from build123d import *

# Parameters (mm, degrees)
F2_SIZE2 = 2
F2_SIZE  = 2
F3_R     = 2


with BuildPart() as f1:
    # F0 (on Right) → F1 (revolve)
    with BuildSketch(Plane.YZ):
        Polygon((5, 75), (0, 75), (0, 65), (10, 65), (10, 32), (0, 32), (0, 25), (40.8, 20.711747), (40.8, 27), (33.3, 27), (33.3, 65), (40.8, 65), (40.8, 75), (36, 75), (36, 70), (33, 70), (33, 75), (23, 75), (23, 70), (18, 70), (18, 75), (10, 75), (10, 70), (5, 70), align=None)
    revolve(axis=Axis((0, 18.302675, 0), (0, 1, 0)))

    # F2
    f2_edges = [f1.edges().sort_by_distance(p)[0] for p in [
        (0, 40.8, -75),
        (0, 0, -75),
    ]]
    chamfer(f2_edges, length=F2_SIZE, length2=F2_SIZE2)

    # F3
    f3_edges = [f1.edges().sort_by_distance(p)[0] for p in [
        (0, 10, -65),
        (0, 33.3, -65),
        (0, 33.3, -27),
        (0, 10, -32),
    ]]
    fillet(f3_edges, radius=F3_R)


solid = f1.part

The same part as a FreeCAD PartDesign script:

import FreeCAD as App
import Part
import Sketcher
Q = App.Units.Quantity


def edges_at(feature, points):
    """Names of the edges that pass closest to the given points."""
    edges = feature.Shape.Edges
    near = lambda p: min(range(len(edges)), key=lambda i: edges[i].distToShape(Part.Vertex(*p))[0])
    return sorted({f"Edge{near(p) + 1}" for p in points})

doc = App.newDocument("Part")
body = doc.addObject("PartDesign::Body", "Body")

sketch1 = doc.addObject("Sketcher::SketchObject", "Sketch")
body.addObject(sketch1)
sketch1.AttachmentSupport = (doc.YZ_Plane, [""])
sketch1.MapMode = "FlatFace"
sketch1.addGeometry([
    Part.LineSegment(App.Vector(5, 75, 0), App.Vector(0, 75, 0)),
    Part.LineSegment(App.Vector(0, 75, 0), App.Vector(0, 65, 0)),
    Part.LineSegment(App.Vector(0, 65, 0), App.Vector(10, 65, 0)),
    Part.LineSegment(App.Vector(10, 65, 0), App.Vector(10, 32, 0)),
    Part.LineSegment(App.Vector(10, 32, 0), App.Vector(0, 32, 0)),
    Part.LineSegment(App.Vector(0, 32, 0), App.Vector(0, 25, 0)),
    Part.LineSegment(App.Vector(0, 25, 0), App.Vector(40.8, 20.711747, 0)),
    Part.LineSegment(App.Vector(40.8, 20.711747, 0), App.Vector(40.8, 27, 0)),
    Part.LineSegment(App.Vector(40.8, 27, 0), App.Vector(33.3, 27, 0)),
    Part.LineSegment(App.Vector(33.3, 27, 0), App.Vector(33.3, 65, 0)),
    Part.LineSegment(App.Vector(33.3, 65, 0), App.Vector(40.8, 65, 0)),
    Part.LineSegment(App.Vector(40.8, 65, 0), App.Vector(40.8, 75, 0)),
    Part.LineSegment(App.Vector(40.8, 75, 0), App.Vector(36, 75, 0)),
    Part.LineSegment(App.Vector(36, 75, 0), App.Vector(36, 70, 0)),
    Part.LineSegment(App.Vector(36, 70, 0), App.Vector(33, 70, 0)),
    Part.LineSegment(App.Vector(33, 70, 0), App.Vector(33, 75, 0)),
    Part.LineSegment(App.Vector(33, 75, 0), App.Vector(23, 75, 0)),
    Part.LineSegment(App.Vector(23, 75, 0), App.Vector(23, 70, 0)),
    Part.LineSegment(App.Vector(23, 70, 0), App.Vector(18, 70, 0)),
    Part.LineSegment(App.Vector(18, 70, 0), App.Vector(18, 75, 0)),
    Part.LineSegment(App.Vector(18, 75, 0), App.Vector(10, 75, 0)),
    Part.LineSegment(App.Vector(10, 75, 0), App.Vector(10, 70, 0)),
    Part.LineSegment(App.Vector(10, 70, 0), App.Vector(5, 70, 0)),
    Part.LineSegment(App.Vector(5, 70, 0), App.Vector(5, 75, 0)),
], False)
sketch1.addConstraint([
    Sketcher.Constraint("Coincident", 0, 2, 1, 1),
    Sketcher.Constraint("Coincident", 1, 2, 2, 1),
    Sketcher.Constraint("Coincident", 2, 2, 3, 1),
    Sketcher.Constraint("Coincident", 3, 2, 4, 1),
    Sketcher.Constraint("Coincident", 4, 2, 5, 1),
    Sketcher.Constraint("Coincident", 5, 2, 6, 1),
    Sketcher.Constraint("Coincident", 6, 2, 7, 1),
    Sketcher.Constraint("Coincident", 7, 2, 8, 1),
    Sketcher.Constraint("Coincident", 8, 2, 9, 1),
    Sketcher.Constraint("Coincident", 9, 2, 10, 1),
    Sketcher.Constraint("Coincident", 10, 2, 11, 1),
    Sketcher.Constraint("Coincident", 11, 2, 12, 1),
    Sketcher.Constraint("Coincident", 12, 2, 13, 1),
    Sketcher.Constraint("Coincident", 13, 2, 14, 1),
    Sketcher.Constraint("Coincident", 14, 2, 15, 1),
    Sketcher.Constraint("Coincident", 15, 2, 16, 1),
    Sketcher.Constraint("Coincident", 16, 2, 17, 1),
    Sketcher.Constraint("Coincident", 17, 2, 18, 1),
    Sketcher.Constraint("Coincident", 18, 2, 19, 1),
    Sketcher.Constraint("Coincident", 19, 2, 20, 1),
    Sketcher.Constraint("Coincident", 20, 2, 21, 1),
    Sketcher.Constraint("Coincident", 21, 2, 22, 1),
    Sketcher.Constraint("Coincident", 22, 2, 23, 1),
    Sketcher.Constraint("Coincident", 23, 2, 0, 1),
    Sketcher.Constraint("Horizontal", 0),
    Sketcher.Constraint("Vertical", 1),
    Sketcher.Constraint("Horizontal", 2),
    Sketcher.Constraint("Vertical", 3),
    Sketcher.Constraint("Horizontal", 4),
    Sketcher.Constraint("Vertical", 5),
    Sketcher.Constraint("Vertical", 7),
    Sketcher.Constraint("Horizontal", 8),
    Sketcher.Constraint("Vertical", 9),
    Sketcher.Constraint("Horizontal", 10),
    Sketcher.Constraint("Vertical", 11),
    Sketcher.Constraint("Horizontal", 12),
    Sketcher.Constraint("Vertical", 13),
    Sketcher.Constraint("Horizontal", 14),
    Sketcher.Constraint("Vertical", 15),
    Sketcher.Constraint("Horizontal", 16),
    Sketcher.Constraint("Vertical", 17),
    Sketcher.Constraint("Horizontal", 18),
    Sketcher.Constraint("Vertical", 19),
    Sketcher.Constraint("Horizontal", 20),
    Sketcher.Constraint("Vertical", 21),
    Sketcher.Constraint("Horizontal", 22),
    Sketcher.Constraint("Vertical", 23),
    Sketcher.Constraint("PointOnObject", 0, 2, -2),
    Sketcher.Constraint("PointOnObject", 4, 2, -2),
    Sketcher.Constraint("Horizontal", 2, 2, 9, 2),
    Sketcher.Constraint("Horizontal", 0, 2, 11, 2),
    Sketcher.Constraint("Horizontal", 12, 2, 15, 2),
    Sketcher.Constraint("Horizontal", 14, 2, 17, 2),
    Sketcher.Constraint("Horizontal", 16, 2, 19, 2),
    Sketcher.Constraint("Horizontal", 18, 2, 21, 2),
    Sketcher.Constraint("Vertical", 7, 2, 10, 2),
    Sketcher.Constraint("Vertical", 3, 2, 20, 2),
    Sketcher.Constraint("Equal", 4, 16),
    Sketcher.Constraint("Equal", 0, 18),
    Sketcher.Constraint("Equal", 18, 22),
    Sketcher.Constraint("Equal", 16, 1),
    Sketcher.Constraint("Equal", 22, 13),
    Sketcher.Constraint("DistanceX", 0, 2, 0, 1, Q("5 mm")),
    Sketcher.Constraint("DistanceX", 14, 2, 14, 1, Q("3 mm")),
    Sketcher.Constraint("DistanceX", 20, 2, 20, 1, Q("8 mm")),
    Sketcher.Constraint("DistanceY", 3, 2, 3, 1, Q("33 mm")),
    Sketcher.Constraint("DistanceY", 5, 2, 5, 1, Q("7 mm")),
    Sketcher.Constraint("DistanceY", 9, 1, 9, 2, Q("38 mm")),
    Sketcher.Constraint("Angle", 6, Q("-6 deg")),
    Sketcher.Constraint("DistanceX", 8, 2, 8, 1, Q("7.5 mm")),
    Sketcher.Constraint("DistanceX", 12, 2, 12, 1, Q("4.8 mm")),
    Sketcher.Constraint("DistanceY", -1, 1, 0, 2, Q("75 mm")),
])
revolution = doc.addObject("PartDesign::Revolution", "Revolution")
body.addObject(revolution)
revolution.Profile = sketch1
revolution.ReferenceAxis = (sketch1, ["H_Axis"])
revolution.Angle = 360
doc.recompute()

chamfer = doc.addObject("PartDesign::Chamfer", "Chamfer")
body.addObject(chamfer)
chamfer.Base = (revolution, edges_at(revolution, [(0, 40.8, -75), (0, 0, -75)]))
chamfer.ChamferType = "Two distances"
chamfer.Size = 2
chamfer.Size2 = 2
doc.recompute()

fillet = doc.addObject("PartDesign::Fillet", "Fillet")
body.addObject(fillet)
fillet.Base = (chamfer, edges_at(chamfer, [
    (0, 10, -65),
    (0, 33.3, -65),
    (0, 33.3, -27),
    (0, 10, -32),
]))
fillet.Radius = 2

doc.recompute()
